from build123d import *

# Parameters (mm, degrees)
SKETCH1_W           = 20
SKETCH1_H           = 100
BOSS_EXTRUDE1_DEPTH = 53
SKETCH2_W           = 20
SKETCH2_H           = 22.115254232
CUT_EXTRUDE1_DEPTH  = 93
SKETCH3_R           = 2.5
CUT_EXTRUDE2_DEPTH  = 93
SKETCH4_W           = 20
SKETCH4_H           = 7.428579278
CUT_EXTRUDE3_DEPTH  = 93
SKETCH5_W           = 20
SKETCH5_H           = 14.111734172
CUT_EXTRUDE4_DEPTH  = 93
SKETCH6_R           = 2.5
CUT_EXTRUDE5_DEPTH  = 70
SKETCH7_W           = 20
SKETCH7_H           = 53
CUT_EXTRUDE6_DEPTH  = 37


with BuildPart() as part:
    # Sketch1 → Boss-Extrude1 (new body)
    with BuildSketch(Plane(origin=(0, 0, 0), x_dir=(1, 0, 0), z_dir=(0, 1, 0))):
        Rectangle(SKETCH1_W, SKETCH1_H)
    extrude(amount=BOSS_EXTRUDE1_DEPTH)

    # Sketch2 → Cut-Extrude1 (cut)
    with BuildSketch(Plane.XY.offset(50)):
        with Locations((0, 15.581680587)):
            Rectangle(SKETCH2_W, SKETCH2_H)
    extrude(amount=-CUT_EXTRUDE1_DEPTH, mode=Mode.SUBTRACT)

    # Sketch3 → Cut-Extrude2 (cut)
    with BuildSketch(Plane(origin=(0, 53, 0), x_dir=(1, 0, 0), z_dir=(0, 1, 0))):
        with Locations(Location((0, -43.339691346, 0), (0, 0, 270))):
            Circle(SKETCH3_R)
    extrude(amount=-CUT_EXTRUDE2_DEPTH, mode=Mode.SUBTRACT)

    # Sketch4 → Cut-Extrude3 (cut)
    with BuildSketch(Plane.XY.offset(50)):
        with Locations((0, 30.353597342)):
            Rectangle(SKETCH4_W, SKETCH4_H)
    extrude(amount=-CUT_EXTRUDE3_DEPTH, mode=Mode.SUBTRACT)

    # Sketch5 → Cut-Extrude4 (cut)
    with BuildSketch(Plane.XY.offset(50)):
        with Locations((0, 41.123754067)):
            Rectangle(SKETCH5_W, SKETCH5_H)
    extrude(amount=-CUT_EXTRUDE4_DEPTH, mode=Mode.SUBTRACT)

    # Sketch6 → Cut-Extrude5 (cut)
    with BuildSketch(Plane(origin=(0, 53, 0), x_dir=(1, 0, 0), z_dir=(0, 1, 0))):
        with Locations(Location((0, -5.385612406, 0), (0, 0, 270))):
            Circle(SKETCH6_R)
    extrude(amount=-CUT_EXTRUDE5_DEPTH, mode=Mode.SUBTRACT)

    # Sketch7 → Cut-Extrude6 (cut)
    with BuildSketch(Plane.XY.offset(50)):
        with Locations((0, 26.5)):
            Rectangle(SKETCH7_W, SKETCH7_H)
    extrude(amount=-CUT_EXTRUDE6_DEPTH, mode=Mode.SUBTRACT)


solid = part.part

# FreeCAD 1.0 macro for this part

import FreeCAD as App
import Part
import Sketcher
Q = App.Units.Quantity


def add_polygon(sketch, points):
    """Adds a closed chain of lines whose ends are joined by coincident constraints."""
    first, n = sketch.GeometryCount, len(points)
    for a, b in zip(points, points[1:] + points[:1]):
        sketch.addGeometry(Part.LineSegment(App.Vector(*a, 0), App.Vector(*b, 0)), False)
    for i in range(n):
        sketch.addConstraint(Sketcher.Constraint("Coincident", first + i, 2, first + (i + 1) % n, 1))

doc = App.newDocument("Part")
params = doc.addObject("Spreadsheet::Sheet", "Params")
for row, (alias, value) in enumerate([
    ("sketch1_width", "20 mm"),
    ("sketch1_height", "100 mm"),
    ("pad1_length", "53 mm"),
    ("sketch2_width", "20 mm"),
    ("pocket1_length", "93 mm"),
    ("sketch3_diameter", "5 mm"),
    ("pocket2_length", "93 mm"),
    ("sketch4_width", "20 mm"),
    ("pocket3_length", "93 mm"),
    ("sketch5_width", "20 mm"),
    ("pocket4_length", "93 mm"),
    ("sketch6_diameter", "5 mm"),
    ("pocket5_length", "70 mm"),
    ("sketch7_width", "20 mm"),
    ("sketch7_height", "53 mm"),
    ("pocket6_length", "37 mm"),
], start=1):
    params.set(f"A{row}", alias)
    params.set(f"B{row}", "=" + value)
    params.setAlias(f"B{row}", alias)

body = doc.addObject("PartDesign::Body", "Body")

# Sketch on XZ plane
sketch1 = body.newObject("Sketcher::SketchObject", "Sketch")
sketch1.AttachmentSupport = (doc.getObject("XZ_Plane"), [""])
sketch1.MapMode = "FlatFace"
add_polygon(sketch1, [(-10, -50), (-10, 50), (10, 50), (10, -50)])  # lines 0-3
sketch1.addConstraint(Sketcher.Constraint("Vertical", 0))
sketch1.addConstraint(Sketcher.Constraint("Horizontal", 1))
sketch1.addConstraint(Sketcher.Constraint("Vertical", 2))
sketch1.addConstraint(Sketcher.Constraint("Horizontal", 3))
sketch1.addConstraint(Sketcher.Constraint("Symmetric", 0, 2, 2, 2, -1, 1))
sketch1.addConstraint(Sketcher.Constraint("DistanceX", 1, 1, 1, 2, Q("20 mm")))
sketch1.addConstraint(Sketcher.Constraint("DistanceY", 0, 1, 0, 2, Q("100 mm")))
sketch1.setExpression("Constraints[9]", "Params.sketch1_width")
sketch1.setExpression("Constraints[10]", "Params.sketch1_height")
pad1 = body.newObject("PartDesign::Pad", "Pad")
pad1.Profile = sketch1
pad1.setExpression("Length", "Params.pad1_length")
pad1.Reversed = True

# Sketch on XY plane
sketch2 = body.newObject("Sketcher::SketchObject", "Sketch001")
sketch2.AttachmentSupport = (doc.getObject("XY_Plane"), [""])
sketch2.MapMode = "FlatFace"
sketch2.AttachmentOffset = App.Placement(App.Vector(0, 0, 50), App.Rotation())
add_polygon(sketch2, [(-10, 27), (-10, 5), (10, 5), (10, 27)])  # lines 0-3
sketch2.addConstraint(Sketcher.Constraint("Vertical", 0))
sketch2.addConstraint(Sketcher.Constraint("Horizontal", 1))
sketch2.addConstraint(Sketcher.Constraint("Vertical", 2))
sketch2.addConstraint(Sketcher.Constraint("Horizontal", 3))
sketch2.addConstraint(Sketcher.Constraint("DistanceX", 1, 1, 1, 2, Q("20 mm")))
sketch2.addConstraint(Sketcher.Constraint("DistanceX", 0, 2, -1, 1, Q("10 mm")))
sketch2.addConstraint(Sketcher.Constraint("DistanceY", 0, 2, 0, 1, Q("22.115254 mm")))
sketch2.addConstraint(Sketcher.Constraint("DistanceY", -1, 1, 0, 2, Q("4.524053 mm")))
sketch2.setExpression("Constraints[8]", "Params.sketch2_width")
pocket1 = body.newObject("PartDesign::Pocket", "Pocket")
pocket1.Profile = sketch2
pocket1.setExpression("Length", "Params.pocket1_length")

# Sketch on XZ plane
sketch3 = body.newObject("Sketcher::SketchObject", "Sketch002")
sketch3.AttachmentSupport = (doc.getObject("XZ_Plane"), [""])
sketch3.MapMode = "FlatFace"
sketch3.AttachmentOffset = App.Placement(App.Vector(0, 0, -53), App.Rotation())
sketch3.addGeometry(Part.Circle(App.Vector(0, 43.3, 0), App.Vector(0, 0, 1), 2.5), False)
sketch3.addConstraint(Sketcher.Constraint("PointOnObject", 0, 3, -2))
sketch3.addConstraint(Sketcher.Constraint("Diameter", 0, Q("5 mm")))
sketch3.addConstraint(Sketcher.Constraint("DistanceY", -1, 1, 0, 3, Q("43.339691 mm")))
sketch3.setExpression("Constraints[1]", "Params.sketch3_diameter")
pocket2 = body.newObject("PartDesign::Pocket", "Pocket001")
pocket2.Profile = sketch3
pocket2.setExpression("Length", "Params.pocket2_length")
pocket2.Reversed = True

# Sketch on XY plane
sketch4 = body.newObject("Sketcher::SketchObject", "Sketch003")
sketch4.AttachmentSupport = (doc.getObject("XY_Plane"), [""])
sketch4.MapMode = "FlatFace"
sketch4.AttachmentOffset = App.Placement(App.Vector(0, 0, 50), App.Rotation())
add_polygon(sketch4, [(-10, 34), (-10, 27), (10, 27), (10, 34)])  # lines 0-3
sketch4.addConstraint(Sketcher.Constraint("Vertical", 0))
sketch4.addConstraint(Sketcher.Constraint("Horizontal", 1))
sketch4.addConstraint(Sketcher.Constraint("Vertical", 2))
sketch4.addConstraint(Sketcher.Constraint("Horizontal", 3))
sketch4.addConstraint(Sketcher.Constraint("DistanceX", 1, 1, 1, 2, Q("20 mm")))
sketch4.addConstraint(Sketcher.Constraint("DistanceX", 0, 2, -1, 1, Q("10 mm")))
sketch4.addConstraint(Sketcher.Constraint("DistanceY", 0, 2, 0, 1, Q("7.428579 mm")))
sketch4.addConstraint(Sketcher.Constraint("DistanceY", -1, 1, 0, 2, Q("26.639308 mm")))
sketch4.setExpression("Constraints[8]", "Params.sketch4_width")
pocket3 = body.newObject("PartDesign::Pocket", "Pocket002")
pocket3.Profile = sketch4
pocket3.setExpression("Length", "Params.pocket3_length")

# Sketch on XY plane
sketch5 = body.newObject("Sketcher::SketchObject", "Sketch004")
sketch5.AttachmentSupport = (doc.getObject("XY_Plane"), [""])
sketch5.MapMode = "FlatFace"
sketch5.AttachmentOffset = App.Placement(App.Vector(0, 0, 50), App.Rotation())
add_polygon(sketch5, [(-10, 48), (-10, 34), (10, 34), (10, 48)])  # lines 0-3
sketch5.addConstraint(Sketcher.Constraint("Vertical", 0))
sketch5.addConstraint(Sketcher.Constraint("Horizontal", 1))
sketch5.addConstraint(Sketcher.Constraint("Vertical", 2))
sketch5.addConstraint(Sketcher.Constraint("Horizontal", 3))
sketch5.addConstraint(Sketcher.Constraint("DistanceX", 1, 1, 1, 2, Q("20 mm")))
sketch5.addConstraint(Sketcher.Constraint("DistanceX", 0, 2, -1, 1, Q("10 mm")))
sketch5.addConstraint(Sketcher.Constraint("DistanceY", 0, 2, 0, 1, Q("14.111734 mm")))
sketch5.addConstraint(Sketcher.Constraint("DistanceY", -1, 1, 2, 2, Q("48.179621 mm")))
sketch5.setExpression("Constraints[8]", "Params.sketch5_width")
pocket4 = body.newObject("PartDesign::Pocket", "Pocket003")
pocket4.Profile = sketch5
pocket4.setExpression("Length", "Params.pocket4_length")

# Sketch on XZ plane
sketch6 = body.newObject("Sketcher::SketchObject", "Sketch005")
sketch6.AttachmentSupport = (doc.getObject("XZ_Plane"), [""])
sketch6.MapMode = "FlatFace"
sketch6.AttachmentOffset = App.Placement(App.Vector(0, 0, -53), App.Rotation())
sketch6.addGeometry(Part.Circle(App.Vector(0, 5.4, 0), App.Vector(0, 0, 1), 2.5), False)
sketch6.addConstraint(Sketcher.Constraint("PointOnObject", 0, 3, -2))
sketch6.addConstraint(Sketcher.Constraint("Diameter", 0, Q("5 mm")))
sketch6.addConstraint(Sketcher.Constraint("DistanceY", -1, 1, 0, 3, Q("5.385612 mm")))
sketch6.setExpression("Constraints[1]", "Params.sketch6_diameter")
pocket5 = body.newObject("PartDesign::Pocket", "Pocket004")
pocket5.Profile = sketch6
pocket5.setExpression("Length", "Params.pocket5_length")
pocket5.Reversed = True

# Sketch on XY plane
sketch7 = body.newObject("Sketcher::SketchObject", "Sketch006")
sketch7.AttachmentSupport = (doc.getObject("XY_Plane"), [""])
sketch7.MapMode = "FlatFace"
sketch7.AttachmentOffset = App.Placement(App.Vector(0, 0, 50), App.Rotation())
add_polygon(sketch7, [(-10, 53), (-10, 0), (10, 0), (10, 53)])  # lines 0-3
sketch7.addConstraint(Sketcher.Constraint("Vertical", 0))
sketch7.addConstraint(Sketcher.Constraint("Horizontal", 1))
sketch7.addConstraint(Sketcher.Constraint("Vertical", 2))
sketch7.addConstraint(Sketcher.Constraint("Horizontal", 3))
sketch7.addConstraint(Sketcher.Constraint("Symmetric", 0, 2, 1, 2, -1, 1))
sketch7.addConstraint(Sketcher.Constraint("DistanceX", 1, 1, 1, 2, Q("20 mm")))
sketch7.addConstraint(Sketcher.Constraint("DistanceY", 0, 2, 0, 1, Q("53 mm")))
sketch7.setExpression("Constraints[9]", "Params.sketch7_width")
sketch7.setExpression("Constraints[10]", "Params.sketch7_height")
pocket6 = body.newObject("PartDesign::Pocket", "Pocket005")
pocket6.Profile = sketch7
pocket6.setExpression("Length", "Params.pocket6_length")

doc.recompute()
